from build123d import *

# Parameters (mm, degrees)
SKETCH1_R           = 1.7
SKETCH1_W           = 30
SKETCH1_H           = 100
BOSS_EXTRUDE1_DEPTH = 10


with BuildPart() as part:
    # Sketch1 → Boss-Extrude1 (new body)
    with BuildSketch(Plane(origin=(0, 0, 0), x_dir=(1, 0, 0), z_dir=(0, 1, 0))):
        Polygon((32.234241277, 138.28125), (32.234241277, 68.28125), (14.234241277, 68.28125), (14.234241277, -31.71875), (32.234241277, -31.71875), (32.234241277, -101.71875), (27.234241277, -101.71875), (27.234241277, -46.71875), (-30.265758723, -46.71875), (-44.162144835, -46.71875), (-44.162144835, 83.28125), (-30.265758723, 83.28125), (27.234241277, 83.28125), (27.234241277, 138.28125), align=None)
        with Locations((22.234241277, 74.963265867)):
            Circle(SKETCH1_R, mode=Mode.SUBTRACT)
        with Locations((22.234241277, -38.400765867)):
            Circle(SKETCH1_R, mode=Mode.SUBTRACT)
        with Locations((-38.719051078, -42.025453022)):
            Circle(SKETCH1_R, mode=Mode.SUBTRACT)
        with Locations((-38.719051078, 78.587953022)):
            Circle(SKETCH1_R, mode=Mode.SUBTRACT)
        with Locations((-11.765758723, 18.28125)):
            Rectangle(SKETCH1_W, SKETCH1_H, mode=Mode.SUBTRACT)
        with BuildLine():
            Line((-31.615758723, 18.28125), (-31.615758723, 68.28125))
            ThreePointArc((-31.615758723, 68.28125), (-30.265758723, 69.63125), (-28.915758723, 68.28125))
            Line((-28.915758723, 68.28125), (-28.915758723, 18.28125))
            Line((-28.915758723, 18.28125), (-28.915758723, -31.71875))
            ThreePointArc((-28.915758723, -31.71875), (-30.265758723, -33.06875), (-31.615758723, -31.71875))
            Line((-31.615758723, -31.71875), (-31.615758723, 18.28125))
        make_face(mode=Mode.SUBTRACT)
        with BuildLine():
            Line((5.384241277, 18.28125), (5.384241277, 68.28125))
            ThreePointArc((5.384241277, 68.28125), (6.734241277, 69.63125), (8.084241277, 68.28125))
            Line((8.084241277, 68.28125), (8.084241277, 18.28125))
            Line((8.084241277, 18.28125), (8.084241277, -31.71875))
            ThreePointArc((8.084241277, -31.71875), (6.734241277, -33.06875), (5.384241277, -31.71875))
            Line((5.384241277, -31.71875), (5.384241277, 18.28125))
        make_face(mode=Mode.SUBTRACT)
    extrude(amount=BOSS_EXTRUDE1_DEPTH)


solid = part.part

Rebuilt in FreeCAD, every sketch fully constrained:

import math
import FreeCAD as App
import Part
import Sketcher
from FreeCAD import Vector
Q = App.Units.Quantity


def add_polygon(sketch, points):
    """Adds a closed chain of lines whose ends are joined by coincident constraints."""
    first, n = sketch.GeometryCount, len(points)
    for a, b in zip(points, points[1:] + points[:1]):
        sketch.addGeometry(Part.LineSegment(App.Vector(*a, 0), App.Vector(*b, 0)), False)
    for i in range(n):
        sketch.addConstraint(Sketcher.Constraint("Coincident", first + i, 2, first + (i + 1) % n, 1))

doc = App.newDocument("Part")
body = doc.addObject("PartDesign::Body", "Body")

# Sketch on XZ plane
sketch1 = body.newObject("Sketcher::SketchObject", "Sketch")
sketch1.AttachmentSupport = (doc.getObject("XZ_Plane"), [""])
sketch1.MapMode = "FlatFace"
add_polygon(sketch1, [(32.2, -68.3), (32.2, -138.3), (27.2, -138.3), (27.2, -83.3), (-44.2, -83.3), (-44.2, 46.7), (27.2, 46.7), (27.2, 101.7), (32.2, 101.7), (32.2, 31.7), (14.2, 31.7), (14.2, -68.3)])  # lines 0-11
sketch1.addGeometry(Part.Circle(Vector(22.2, 38.4, 0), Vector(0, 0, 1), 1.7), False)  # 12
sketch1.addGeometry(Part.ArcOfCircle(Part.Circle(Vector(6.7, -68.3, 0), Vector(0, 0, 1), 1.4), math.radians(180), math.radians(360)), False)  # 13
sketch1.addGeometry(Part.LineSegment(Vector(8.1, -68.3, 0), Vector(8.1, 31.7, 0)), False)  # 14
sketch1.addGeometry(Part.ArcOfCircle(Part.Circle(Vector(6.7, 31.7, 0), Vector(0, 0, 1), 1.4), math.radians(0), math.radians(180)), False)  # 15
sketch1.addGeometry(Part.LineSegment(Vector(5.4, 31.7, 0), Vector(5.4, -68.3, 0)), False)  # 16
sketch1.addGeometry(Part.Circle(Vector(-38.7, 42, 0), Vector(0, 0, 1), 1.7), False)  # 17
sketch1.addGeometry(Part.ArcOfCircle(Part.Circle(Vector(-30.3, -68.3, 0), Vector(0, 0, 1), 1.4), math.radians(180), math.radians(360)), False)  # 18
sketch1.addGeometry(Part.LineSegment(Vector(-28.9, -68.3, 0), Vector(-28.9, 31.7, 0)), False)  # 19
sketch1.addGeometry(Part.ArcOfCircle(Part.Circle(Vector(-30.3, 31.7, 0), Vector(0, 0, 1), 1.4), math.radians(0), math.radians(180)), False)  # 20
sketch1.addGeometry(Part.LineSegment(Vector(-31.6, 31.7, 0), Vector(-31.6, -68.3, 0)), False)  # 21
sketch1.addGeometry(Part.Circle(Vector(22.2, -75, 0), Vector(0, 0, 1), 1.7), False)  # 22
add_polygon(sketch1, [(-26.8, 31.7), (-26.8, -68.3), (3.2, -68.3), (3.2, 31.7)])  # lines 23-26
sketch1.addGeometry(Part.Circle(Vector(-38.7, -78.6, 0), Vector(0, 0, 1), 1.7), False)  # 27
sketch1.addConstraint([
    Sketcher.Constraint("Tangent", 13, 2, 14, 1),
    Sketcher.Constraint("Tangent", 14, 2, 15, 1),
    Sketcher.Constraint("Tangent", 15, 2, 16, 1),
    Sketcher.Constraint("Tangent", 16, 2, 13, 1),
    Sketcher.Constraint("Tangent", 18, 2, 19, 1),
    Sketcher.Constraint("Tangent", 19, 2, 20, 1),
    Sketcher.Constraint("Tangent", 20, 2, 21, 1),
    Sketcher.Constraint("Tangent", 21, 2, 18, 1),
    Sketcher.Constraint("Vertical", 0),
    Sketcher.Constraint("Horizontal", 1),
    Sketcher.Constraint("Vertical", 2),
    Sketcher.Constraint("Horizontal", 3),
    Sketcher.Constraint("Vertical", 4),
    Sketcher.Constraint("Horizontal", 5),
    Sketcher.Constraint("Vertical", 6),
    Sketcher.Constraint("Horizontal", 7),
    Sketcher.Constraint("Vertical", 8),
    Sketcher.Constraint("Horizontal", 9),
    Sketcher.Constraint("Vertical", 10),
    Sketcher.Constraint("Horizontal", 11),
    Sketcher.Constraint("Vertical", 14),
    Sketcher.Constraint("Vertical", 16),
    Sketcher.Constraint("Vertical", 19),
    Sketcher.Constraint("Vertical", 21),
    Sketcher.Constraint("Vertical", 23),
    Sketcher.Constraint("Horizontal", 24),
    Sketcher.Constraint("Vertical", 25),
    Sketcher.Constraint("Horizontal", 26),
    Sketcher.Constraint("Equal", 12, 17),
    Sketcher.Constraint("Equal", 15, 18),
    Sketcher.Constraint("Equal", 17, 22),
    Sketcher.Constraint("Equal", 22, 27),
    Sketcher.Constraint("Horizontal", 13, 3, 18, 3),
    Sketcher.Constraint("Horizontal", 15, 3, 20, 3),
    Sketcher.Constraint("Horizontal", 20, 3, 8, 2),
    Sketcher.Constraint("Horizontal", 18, 3, 10, 2),
    Sketcher.Constraint("Horizontal", 21, 2, 23, 2),
    Sketcher.Constraint("Horizontal", 20, 2, 25, 2),
    Sketcher.Constraint("Vertical", 12, 3, 22, 3),
    Sketcher.Constraint("Vertical", 17, 3, 27, 3),
    Sketcher.Constraint("Vertical", 2, 2, 5, 2),
    Sketcher.Constraint("Vertical", 0, 2, 7, 2),
    Sketcher.Constraint("Equal", 2, 6),
    Sketcher.Constraint("Equal", 0, 8),
    Sketcher.Constraint("Diameter", 12, Q("3.4 mm")),
    Sketcher.Constraint("DistanceX", 1, 2, 1, 1, Q("5 mm")),
    Sketcher.Constraint("DistanceX", 9, 2, 9, 1, Q("18 mm")),
    Sketcher.Constraint("DistanceX", 24, 1, 24, 2, Q("30 mm")),
    Sketcher.Constraint("DistanceY", 0, 2, 0, 1, Q("70 mm")),
    Sketcher.Constraint("DistanceY", 2, 1, 2, 2, Q("55 mm")),
    Sketcher.Constraint("DistanceY", 4, 1, 4, 2, Q("130 mm")),
    Sketcher.Constraint("Radius", 13, Q("1.35 mm")),
    Sketcher.Constraint("DistanceX", 18, 3, 13, 3, Q("37 mm")),
    Sketcher.Constraint("DistanceX", 22, 3, 0, 2, Q("10 mm")),
    Sketcher.Constraint("DistanceX", 24, 2, 10, 2, Q("11 mm")),
    Sketcher.Constraint("DistanceX", 13, 3, 12, 3, Q("15.5 mm")),
    Sketcher.Constraint("DistanceX", 3, 2, 3, 1, Q("71.396386 mm")),
    Sketcher.Constraint("DistanceX", -1, 1, 12, 3, Q("22.234241 mm")),
    Sketcher.Constraint("DistanceY", 13, 3, -1, 1, Q("68.28125 mm")),
    Sketcher.Constraint("DistanceX", 17, 3, -1, 1, Q("38.719051 mm")),
    Sketcher.Constraint("DistanceY", 22, 3, 12, 3, Q("113.364032 mm")),
    Sketcher.Constraint("DistanceY", -1, 1, 12, 3, Q("38.400766 mm")),
    Sketcher.Constraint("DistanceY", -1, 1, 17, 3, Q("42.025453 mm")),
    Sketcher.Constraint("DistanceY", 27, 3, -1, 1, Q("78.587953 mm")),
])
pad1 = body.newObject("PartDesign::Pad", "Pad")
pad1.Profile = sketch1
pad1.Length = 10
pad1.Reversed = True

doc.recompute()
